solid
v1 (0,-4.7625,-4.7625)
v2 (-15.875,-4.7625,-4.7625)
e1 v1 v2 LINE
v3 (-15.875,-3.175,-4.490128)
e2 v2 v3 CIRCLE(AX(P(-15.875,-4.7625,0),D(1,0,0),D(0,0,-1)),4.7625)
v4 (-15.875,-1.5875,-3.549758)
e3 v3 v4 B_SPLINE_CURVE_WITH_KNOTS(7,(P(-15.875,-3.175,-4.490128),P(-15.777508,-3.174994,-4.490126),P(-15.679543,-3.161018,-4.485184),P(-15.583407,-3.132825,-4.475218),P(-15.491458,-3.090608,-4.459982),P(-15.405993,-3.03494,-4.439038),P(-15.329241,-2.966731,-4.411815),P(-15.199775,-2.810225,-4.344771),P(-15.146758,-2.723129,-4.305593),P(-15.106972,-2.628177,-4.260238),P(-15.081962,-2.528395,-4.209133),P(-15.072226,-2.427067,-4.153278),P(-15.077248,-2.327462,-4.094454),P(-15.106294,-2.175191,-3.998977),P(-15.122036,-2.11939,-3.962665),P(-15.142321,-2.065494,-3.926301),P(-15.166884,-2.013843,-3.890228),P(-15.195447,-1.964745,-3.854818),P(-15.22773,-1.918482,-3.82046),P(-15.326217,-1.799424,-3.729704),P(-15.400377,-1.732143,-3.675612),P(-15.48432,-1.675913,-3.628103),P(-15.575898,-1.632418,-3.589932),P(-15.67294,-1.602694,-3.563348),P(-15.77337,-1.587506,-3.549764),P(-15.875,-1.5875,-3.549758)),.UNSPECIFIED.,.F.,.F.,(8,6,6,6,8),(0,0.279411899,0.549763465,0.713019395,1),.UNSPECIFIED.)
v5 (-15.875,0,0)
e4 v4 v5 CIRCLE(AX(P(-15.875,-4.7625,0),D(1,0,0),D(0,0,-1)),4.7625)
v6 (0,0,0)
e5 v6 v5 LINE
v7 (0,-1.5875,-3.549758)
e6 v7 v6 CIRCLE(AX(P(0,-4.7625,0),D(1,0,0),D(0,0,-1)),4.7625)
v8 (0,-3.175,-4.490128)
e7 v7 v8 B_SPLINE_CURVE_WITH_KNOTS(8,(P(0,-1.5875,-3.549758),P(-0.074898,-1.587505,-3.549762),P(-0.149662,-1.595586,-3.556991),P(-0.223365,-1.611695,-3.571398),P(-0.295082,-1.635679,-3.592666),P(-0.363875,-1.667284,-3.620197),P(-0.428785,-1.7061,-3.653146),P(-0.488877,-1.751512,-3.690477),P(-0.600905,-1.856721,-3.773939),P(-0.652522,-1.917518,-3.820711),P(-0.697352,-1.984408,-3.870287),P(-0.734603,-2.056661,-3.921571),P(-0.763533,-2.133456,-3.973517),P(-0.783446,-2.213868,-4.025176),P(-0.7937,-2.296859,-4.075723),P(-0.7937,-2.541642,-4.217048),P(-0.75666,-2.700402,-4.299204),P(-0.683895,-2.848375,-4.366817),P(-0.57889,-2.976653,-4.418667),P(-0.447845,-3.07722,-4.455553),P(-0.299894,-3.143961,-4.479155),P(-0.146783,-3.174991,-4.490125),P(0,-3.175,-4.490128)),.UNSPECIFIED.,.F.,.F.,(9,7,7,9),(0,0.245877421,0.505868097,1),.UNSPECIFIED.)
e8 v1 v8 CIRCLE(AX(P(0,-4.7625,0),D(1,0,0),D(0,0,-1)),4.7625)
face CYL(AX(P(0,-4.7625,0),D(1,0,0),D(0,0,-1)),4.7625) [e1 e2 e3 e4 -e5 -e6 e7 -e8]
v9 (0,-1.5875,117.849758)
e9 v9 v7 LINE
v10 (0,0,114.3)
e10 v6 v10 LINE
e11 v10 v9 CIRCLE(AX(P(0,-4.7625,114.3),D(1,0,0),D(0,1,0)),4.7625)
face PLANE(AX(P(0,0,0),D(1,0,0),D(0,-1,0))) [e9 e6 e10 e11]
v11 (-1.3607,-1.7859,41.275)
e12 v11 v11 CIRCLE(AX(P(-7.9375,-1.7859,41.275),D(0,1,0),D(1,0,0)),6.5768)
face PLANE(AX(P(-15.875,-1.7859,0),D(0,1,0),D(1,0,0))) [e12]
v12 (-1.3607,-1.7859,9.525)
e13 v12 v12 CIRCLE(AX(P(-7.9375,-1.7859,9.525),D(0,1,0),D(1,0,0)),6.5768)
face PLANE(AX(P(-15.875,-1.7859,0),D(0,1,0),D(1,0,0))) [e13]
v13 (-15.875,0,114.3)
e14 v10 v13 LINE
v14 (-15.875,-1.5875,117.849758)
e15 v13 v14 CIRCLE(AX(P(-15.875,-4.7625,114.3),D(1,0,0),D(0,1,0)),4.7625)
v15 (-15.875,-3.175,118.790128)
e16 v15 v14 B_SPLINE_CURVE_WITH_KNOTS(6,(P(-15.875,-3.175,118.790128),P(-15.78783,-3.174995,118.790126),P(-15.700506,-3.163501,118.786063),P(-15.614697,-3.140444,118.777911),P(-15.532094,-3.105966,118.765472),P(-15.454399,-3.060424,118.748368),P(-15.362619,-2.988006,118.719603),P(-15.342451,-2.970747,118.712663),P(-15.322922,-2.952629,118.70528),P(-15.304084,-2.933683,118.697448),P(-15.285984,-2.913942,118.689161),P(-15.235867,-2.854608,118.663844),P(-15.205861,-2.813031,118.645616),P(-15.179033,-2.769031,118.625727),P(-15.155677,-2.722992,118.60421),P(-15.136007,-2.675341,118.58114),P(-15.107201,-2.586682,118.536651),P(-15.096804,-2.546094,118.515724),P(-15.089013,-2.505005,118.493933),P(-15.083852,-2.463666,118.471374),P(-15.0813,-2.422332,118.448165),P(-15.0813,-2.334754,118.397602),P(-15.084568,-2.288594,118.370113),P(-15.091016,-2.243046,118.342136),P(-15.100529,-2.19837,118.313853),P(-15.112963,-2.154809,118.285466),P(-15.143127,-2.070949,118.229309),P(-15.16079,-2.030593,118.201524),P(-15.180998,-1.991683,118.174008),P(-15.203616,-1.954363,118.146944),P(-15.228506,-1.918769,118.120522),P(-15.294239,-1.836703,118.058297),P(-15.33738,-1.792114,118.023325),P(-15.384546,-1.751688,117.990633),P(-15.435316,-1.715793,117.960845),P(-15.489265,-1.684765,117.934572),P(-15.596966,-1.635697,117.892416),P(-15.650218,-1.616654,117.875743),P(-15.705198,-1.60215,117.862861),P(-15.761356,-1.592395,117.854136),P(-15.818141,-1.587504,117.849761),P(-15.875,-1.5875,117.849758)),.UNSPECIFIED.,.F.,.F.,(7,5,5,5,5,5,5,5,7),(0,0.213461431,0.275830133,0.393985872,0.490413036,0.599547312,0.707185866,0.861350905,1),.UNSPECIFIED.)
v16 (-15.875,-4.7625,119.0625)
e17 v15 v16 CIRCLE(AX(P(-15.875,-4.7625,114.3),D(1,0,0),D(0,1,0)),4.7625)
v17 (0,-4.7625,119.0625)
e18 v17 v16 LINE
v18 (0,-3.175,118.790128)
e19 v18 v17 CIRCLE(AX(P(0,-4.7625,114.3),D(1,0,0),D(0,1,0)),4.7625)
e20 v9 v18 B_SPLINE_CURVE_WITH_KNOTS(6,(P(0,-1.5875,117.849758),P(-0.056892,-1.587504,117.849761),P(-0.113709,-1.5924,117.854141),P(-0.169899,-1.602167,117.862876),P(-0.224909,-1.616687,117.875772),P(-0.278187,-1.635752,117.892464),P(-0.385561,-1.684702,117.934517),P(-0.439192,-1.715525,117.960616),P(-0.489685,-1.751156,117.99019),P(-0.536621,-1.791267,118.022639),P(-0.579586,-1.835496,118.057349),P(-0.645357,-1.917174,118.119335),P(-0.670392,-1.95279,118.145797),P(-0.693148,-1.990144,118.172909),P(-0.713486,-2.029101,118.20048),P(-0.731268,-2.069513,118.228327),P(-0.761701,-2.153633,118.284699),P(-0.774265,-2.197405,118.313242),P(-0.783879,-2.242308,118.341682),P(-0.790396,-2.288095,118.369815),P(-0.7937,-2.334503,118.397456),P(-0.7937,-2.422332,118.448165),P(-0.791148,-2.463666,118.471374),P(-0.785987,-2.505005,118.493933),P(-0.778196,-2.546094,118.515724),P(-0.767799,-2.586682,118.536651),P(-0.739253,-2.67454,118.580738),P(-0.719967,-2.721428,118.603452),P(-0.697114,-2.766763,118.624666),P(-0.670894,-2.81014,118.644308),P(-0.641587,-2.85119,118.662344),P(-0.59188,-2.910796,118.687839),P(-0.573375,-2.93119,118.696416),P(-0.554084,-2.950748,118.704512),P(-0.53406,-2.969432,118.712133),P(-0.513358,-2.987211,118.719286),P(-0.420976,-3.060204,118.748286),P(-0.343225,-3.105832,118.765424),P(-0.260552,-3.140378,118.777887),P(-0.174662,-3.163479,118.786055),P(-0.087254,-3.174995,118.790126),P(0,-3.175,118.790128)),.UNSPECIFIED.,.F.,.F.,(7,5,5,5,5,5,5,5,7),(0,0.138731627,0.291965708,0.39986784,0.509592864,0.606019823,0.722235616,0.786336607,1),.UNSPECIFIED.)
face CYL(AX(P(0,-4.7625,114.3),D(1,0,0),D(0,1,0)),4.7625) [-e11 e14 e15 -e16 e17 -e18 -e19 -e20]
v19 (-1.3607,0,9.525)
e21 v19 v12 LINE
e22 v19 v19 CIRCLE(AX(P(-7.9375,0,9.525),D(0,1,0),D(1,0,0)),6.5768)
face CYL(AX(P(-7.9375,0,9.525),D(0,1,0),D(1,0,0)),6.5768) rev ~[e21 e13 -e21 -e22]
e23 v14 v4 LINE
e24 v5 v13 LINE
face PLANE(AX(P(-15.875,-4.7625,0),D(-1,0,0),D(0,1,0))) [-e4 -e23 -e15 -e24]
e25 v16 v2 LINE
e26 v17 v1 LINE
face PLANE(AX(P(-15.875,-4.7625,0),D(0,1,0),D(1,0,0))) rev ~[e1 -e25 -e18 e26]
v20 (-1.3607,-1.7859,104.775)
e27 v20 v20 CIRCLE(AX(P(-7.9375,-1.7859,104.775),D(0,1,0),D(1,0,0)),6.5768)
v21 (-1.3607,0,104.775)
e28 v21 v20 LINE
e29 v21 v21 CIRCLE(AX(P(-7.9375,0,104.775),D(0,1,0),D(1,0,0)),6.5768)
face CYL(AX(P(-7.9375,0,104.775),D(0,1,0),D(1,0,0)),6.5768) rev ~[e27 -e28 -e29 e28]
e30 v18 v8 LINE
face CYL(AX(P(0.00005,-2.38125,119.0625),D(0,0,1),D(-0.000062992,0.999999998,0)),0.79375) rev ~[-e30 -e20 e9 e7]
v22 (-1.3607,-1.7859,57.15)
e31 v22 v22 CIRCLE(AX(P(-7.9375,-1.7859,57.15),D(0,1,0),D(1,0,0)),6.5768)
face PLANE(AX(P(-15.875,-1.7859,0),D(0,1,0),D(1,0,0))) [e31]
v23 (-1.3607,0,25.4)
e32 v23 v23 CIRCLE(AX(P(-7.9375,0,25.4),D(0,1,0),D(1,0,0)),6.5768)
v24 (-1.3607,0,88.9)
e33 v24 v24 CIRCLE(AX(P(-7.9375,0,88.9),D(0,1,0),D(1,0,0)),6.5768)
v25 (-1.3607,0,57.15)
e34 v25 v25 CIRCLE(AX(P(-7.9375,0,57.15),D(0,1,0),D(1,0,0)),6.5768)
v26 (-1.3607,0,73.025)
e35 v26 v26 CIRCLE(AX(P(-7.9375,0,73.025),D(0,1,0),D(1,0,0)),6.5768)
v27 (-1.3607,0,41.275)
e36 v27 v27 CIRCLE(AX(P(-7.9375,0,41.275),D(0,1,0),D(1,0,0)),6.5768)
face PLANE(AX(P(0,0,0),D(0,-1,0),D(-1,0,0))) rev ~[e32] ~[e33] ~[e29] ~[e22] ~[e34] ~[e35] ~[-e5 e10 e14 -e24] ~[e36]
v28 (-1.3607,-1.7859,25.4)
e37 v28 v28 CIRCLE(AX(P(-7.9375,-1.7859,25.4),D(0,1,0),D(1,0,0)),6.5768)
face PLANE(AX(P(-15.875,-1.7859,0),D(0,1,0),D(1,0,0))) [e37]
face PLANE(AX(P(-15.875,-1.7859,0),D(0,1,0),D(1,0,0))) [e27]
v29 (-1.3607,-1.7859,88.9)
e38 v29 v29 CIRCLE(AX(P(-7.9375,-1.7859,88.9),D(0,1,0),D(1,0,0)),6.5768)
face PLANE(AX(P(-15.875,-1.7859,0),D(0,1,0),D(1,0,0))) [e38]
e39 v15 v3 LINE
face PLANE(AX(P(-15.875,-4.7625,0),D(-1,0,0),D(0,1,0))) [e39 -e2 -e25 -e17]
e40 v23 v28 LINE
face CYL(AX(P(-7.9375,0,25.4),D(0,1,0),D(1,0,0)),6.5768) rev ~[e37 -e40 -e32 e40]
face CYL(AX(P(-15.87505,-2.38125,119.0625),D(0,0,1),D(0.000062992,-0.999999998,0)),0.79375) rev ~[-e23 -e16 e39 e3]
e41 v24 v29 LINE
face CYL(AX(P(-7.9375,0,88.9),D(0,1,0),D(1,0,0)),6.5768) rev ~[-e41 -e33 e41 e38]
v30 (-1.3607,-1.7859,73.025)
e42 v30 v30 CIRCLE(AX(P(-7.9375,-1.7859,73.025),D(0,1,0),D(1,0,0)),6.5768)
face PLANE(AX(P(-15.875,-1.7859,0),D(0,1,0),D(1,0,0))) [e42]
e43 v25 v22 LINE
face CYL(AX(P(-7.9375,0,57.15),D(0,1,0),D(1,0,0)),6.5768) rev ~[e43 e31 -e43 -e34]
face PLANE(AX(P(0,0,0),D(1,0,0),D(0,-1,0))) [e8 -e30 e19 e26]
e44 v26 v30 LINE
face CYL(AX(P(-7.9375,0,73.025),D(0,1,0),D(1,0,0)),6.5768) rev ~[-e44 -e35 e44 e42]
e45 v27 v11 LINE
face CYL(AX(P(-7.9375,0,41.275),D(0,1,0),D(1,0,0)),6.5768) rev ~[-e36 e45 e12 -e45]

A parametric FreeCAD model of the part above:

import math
import FreeCAD as App
import Part
import Sketcher
from FreeCAD import Vector
Q = App.Units.Quantity


def add_polygon(sketch, points):
    """Adds a closed chain of lines whose ends are joined by coincident constraints."""
    first, n = sketch.GeometryCount, len(points)
    for a, b in zip(points, points[1:] + points[:1]):
        sketch.addGeometry(Part.LineSegment(App.Vector(*a, 0), App.Vector(*b, 0)), False)
    for i in range(n):
        sketch.addConstraint(Sketcher.Constraint("Coincident", first + i, 2, first + (i + 1) % n, 1))

doc = App.newDocument("Part")
params = doc.addObject("Spreadsheet::Sheet", "Params")
for row, (alias, value) in enumerate([
    ("sketch1_width", "0.625 in"),
    ("sketch1_height", "0.1875 in"),
    ("pad1_length", "4.5 in"),
    ("sketch2_radius", "0.1875 in"),
    ("pad2_length", "0.625 in"),
    ("sketch3_radius", "0.031248 in"),
    ("pocket2_length", "0.070311 in"),
], start=1):
    params.set(f"A{row}", alias)
    params.set(f"B{row}", "=" + value)
    params.setAlias(f"B{row}", alias)

body = doc.addObject("PartDesign::Body", "Body")

# Sketch on XY plane
sketch1 = body.newObject("Sketcher::SketchObject", "Sketch")
sketch1.AttachmentSupport = (doc.getObject("XY_Plane"), [""])
sketch1.MapMode = "FlatFace"
add_polygon(sketch1, [(0, -4.7625), (0, 0), (-15.875, 0), (-15.875, -4.7625)])  # lines 0-3
sketch1.addConstraint([
    Sketcher.Constraint("Vertical", 0),
    Sketcher.Constraint("Horizontal", 1),
    Sketcher.Constraint("Vertical", 2),
    Sketcher.Constraint("Horizontal", 3),
    Sketcher.Constraint("Coincident", 0, 2, -1, 1),
    Sketcher.Constraint("DistanceX", 1, 2, 1, 1, Q("0.625 in")),
    Sketcher.Constraint("DistanceY", 0, 1, 0, 2, Q("0.1875 in")),
])
sketch1.setExpression("Constraints[9]", "Params.sketch1_width")
sketch1.setExpression("Constraints[10]", "Params.sketch1_height")
pad1 = body.newObject("PartDesign::Pad", "Pad")
pad1.Profile = sketch1
pad1.setExpression("Length", "Params.pad1_length")

# Sketch on YZ plane
sketch2 = body.newObject("Sketcher::SketchObject", "Sketch001")
sketch2.AttachmentSupport = (doc.getObject("YZ_Plane"), [""])
sketch2.MapMode = "FlatFace"
sketch2.addGeometry([
    Part.LineSegment(Vector(-4.7625, 0, 0), Vector(-4.7625, -4.7625, 0)),  # 0
    Part.ArcOfCircle(Part.Circle(Vector(-4.7625, 0, 0), Vector(0, 0, 1), 4.7625), math.radians(-90), math.radians(0)),  # 1
    Part.LineSegment(Vector(0, 0, 0), Vector(-4.7625, 0, 0)),  # 2
    Part.LineSegment(Vector(-4.7625, 114.3, 0), Vector(0, 114.3, 0)),  # 3
    Part.ArcOfCircle(Part.Circle(Vector(-4.7625, 114.3, 0), Vector(0, 0, 1), 4.7625), math.radians(0), math.radians(90)),  # 4
    Part.LineSegment(Vector(-4.7625, 119.0625, 0), Vector(-4.7625, 114.3, 0)),  # 5
], False)
sketch2.addConstraint([
    Sketcher.Constraint("Coincident", 0, 2, 1, 1),
    Sketcher.Constraint("Coincident", 1, 2, 2, 1),
    Sketcher.Constraint("Coincident", 2, 2, 0, 1),
    Sketcher.Constraint("Coincident", 3, 2, 4, 1),
    Sketcher.Constraint("Coincident", 4, 2, 5, 1),
    Sketcher.Constraint("Coincident", 5, 2, 3, 1),
    Sketcher.Constraint("Vertical", 0),
    Sketcher.Constraint("Horizontal", 2),
    Sketcher.Constraint("Horizontal", 3),
    Sketcher.Constraint("Vertical", 5),
    Sketcher.Constraint("Coincident", 1, 2, -1, 1),
    Sketcher.Constraint("Coincident", 2, 2, 1, 3),
    Sketcher.Constraint("Coincident", 5, 2, 4, 3),
    Sketcher.Constraint("Equal", 1, 4),
    Sketcher.Constraint("PointOnObject", 3, 2, -2),
    Sketcher.Constraint("Radius", 1, Q("0.1875 in")),
    Sketcher.Constraint("DistanceY", -1, 1, 4, 3, Q("4.5 in")),
])
sketch2.setExpression("Constraints[15]", "Params.sketch2_radius")
pad2 = body.newObject("PartDesign::Pad", "Pad001")
pad2.Profile = sketch2
pad2.setExpression("Length", "Params.pad2_length")
pad2.Reversed = True

# Sketch on XY plane
sketch3 = body.newObject("Sketcher::SketchObject", "Sketch002")
sketch3.AttachmentSupport = (doc.getObject("XY_Plane"), [""])
sketch3.MapMode = "FlatFace"
sketch3.AttachmentOffset = App.Placement(Vector(0, 0, 4.6875 * 25.4), App.Rotation())
sketch3.addGeometry([
    Part.LineSegment(Vector(0, -3.175, 0), Vector(0, -1.5875, 0)),
    Part.ArcOfCircle(Part.Circle(Vector(0, -2.3812, 0), Vector(0, 0, 1), 0.7937), math.radians(90), math.radians(270)),
    Part.LineSegment(Vector(-15.875, -1.5875, 0), Vector(-15.875, -3.175, 0)),
    Part.ArcOfCircle(Part.Circle(Vector(-15.875, -2.3813, 0), Vector(0, 0, 1), 0.7937), math.radians(-90), math.radians(90)),
], False)
sketch3.addConstraint([
    Sketcher.Constraint("Coincident", 0, 1, 1, 2),
    Sketcher.Constraint("Coincident", 1, 1, 0, 2),
    Sketcher.Constraint("Coincident", 2, 1, 3, 2),
    Sketcher.Constraint("Coincident", 3, 1, 2, 2),
    Sketcher.Constraint("Vertical", 0),
    Sketcher.Constraint("Vertical", 2),
    Sketcher.Constraint("Equal", 1, 3),
    Sketcher.Constraint("PointOnObject", 1, 3, -2),
    Sketcher.Constraint("PointOnObject", 0, 1, -2),
    Sketcher.Constraint("Horizontal", 1, 3, 3, 3),
    Sketcher.Constraint("Vertical", 3, 3, 2, 1),
    Sketcher.Constraint("Radius", 1, Q("0.031248 in")),
    Sketcher.Constraint("DistanceY", 1, 3, -1, 1, Q("0.093748 in")),
    Sketcher.Constraint("DistanceX", 3, 3, -1, 1, Q("0.625 in")),
])
sketch3.setExpression("Constraints[11]", "Params.sketch3_radius")
pocket1 = body.newObject("PartDesign::Pocket", "Pocket")
pocket1.Profile = sketch3
pocket1.Type = "ThroughAll"

# Sketch on XZ plane
sketch4 = body.newObject("Sketcher::SketchObject", "Sketch003")
sketch4.AttachmentSupport = (doc.getObject("XZ_Plane"), [""])
sketch4.MapMode = "FlatFace"
sketch4.addGeometry([
    Part.Circle(Vector(-7.9375, 104.775, 0), Vector(0, 0, 1), 6.5768),  # 0
    Part.Circle(Vector(-7.9375, 88.9, 0), Vector(0, 0, 1), 6.5768),  # 1
    Part.Circle(Vector(-7.9375, 73.025, 0), Vector(0, 0, 1), 6.5768),  # 2
    Part.Circle(Vector(-7.9375, 57.15, 0), Vector(0, 0, 1), 6.5768),  # 3
    Part.Circle(Vector(-7.9375, 41.275, 0), Vector(0, 0, 1), 6.5768),  # 4
    Part.Circle(Vector(-7.9375, 25.4, 0), Vector(0, 0, 1), 6.5768),  # 5
    Part.Circle(Vector(-7.9375, 9.525, 0), Vector(0, 0, 1), 6.5768),  # 6
], False)
sketch4.addConstraint([
    Sketcher.Constraint("Equal", 0, 1),
    Sketcher.Constraint("Equal", 1, 2),
    Sketcher.Constraint("Equal", 2, 3),
    Sketcher.Constraint("Equal", 3, 4),
    Sketcher.Constraint("Equal", 4, 5),
    Sketcher.Constraint("Equal", 5, 6),
    Sketcher.Constraint("Vertical", 0, 3, 1, 3),
    Sketcher.Constraint("Vertical", 1, 3, 2, 3),
    Sketcher.Constraint("Vertical", 2, 3, 3, 3),
    Sketcher.Constraint("Vertical", 3, 3, 4, 3),
    Sketcher.Constraint("Vertical", 4, 3, 5, 3),
    Sketcher.Constraint("Vertical", 5, 3, 6, 3),
    Sketcher.Constraint("DistanceY", -1, 1, 5, 3, Q("1 in")),
    Sketcher.Constraint("Diameter", 0, 13.1536),
    Sketcher.Constraint("DistanceX", 0, 3, -1, 1, Q("0.3125 in")),
    Sketcher.Constraint("DistanceY", -1, 1, 6, 3, Q("0.375 in")),
    Sketcher.Constraint("DistanceY", 1, 3, 0, 3, Q("0.625 in")),
    Sketcher.Constraint("DistanceY", 2, 3, 1, 3, Q("0.625 in")),
    Sketcher.Constraint("DistanceY", 3, 3, 2, 3, Q("0.625 in")),
    Sketcher.Constraint("DistanceY", 4, 3, 3, 3, Q("0.625 in")),
    Sketcher.Constraint("DistanceY", 5, 3, 4, 3, Q("0.625 in")),
])
pocket2 = body.newObject("PartDesign::Pocket", "Pocket001")
pocket2.Profile = sketch4
pocket2.setExpression("Length", "Params.pocket2_length")
pocket2.Reversed = True

doc.recompute()
